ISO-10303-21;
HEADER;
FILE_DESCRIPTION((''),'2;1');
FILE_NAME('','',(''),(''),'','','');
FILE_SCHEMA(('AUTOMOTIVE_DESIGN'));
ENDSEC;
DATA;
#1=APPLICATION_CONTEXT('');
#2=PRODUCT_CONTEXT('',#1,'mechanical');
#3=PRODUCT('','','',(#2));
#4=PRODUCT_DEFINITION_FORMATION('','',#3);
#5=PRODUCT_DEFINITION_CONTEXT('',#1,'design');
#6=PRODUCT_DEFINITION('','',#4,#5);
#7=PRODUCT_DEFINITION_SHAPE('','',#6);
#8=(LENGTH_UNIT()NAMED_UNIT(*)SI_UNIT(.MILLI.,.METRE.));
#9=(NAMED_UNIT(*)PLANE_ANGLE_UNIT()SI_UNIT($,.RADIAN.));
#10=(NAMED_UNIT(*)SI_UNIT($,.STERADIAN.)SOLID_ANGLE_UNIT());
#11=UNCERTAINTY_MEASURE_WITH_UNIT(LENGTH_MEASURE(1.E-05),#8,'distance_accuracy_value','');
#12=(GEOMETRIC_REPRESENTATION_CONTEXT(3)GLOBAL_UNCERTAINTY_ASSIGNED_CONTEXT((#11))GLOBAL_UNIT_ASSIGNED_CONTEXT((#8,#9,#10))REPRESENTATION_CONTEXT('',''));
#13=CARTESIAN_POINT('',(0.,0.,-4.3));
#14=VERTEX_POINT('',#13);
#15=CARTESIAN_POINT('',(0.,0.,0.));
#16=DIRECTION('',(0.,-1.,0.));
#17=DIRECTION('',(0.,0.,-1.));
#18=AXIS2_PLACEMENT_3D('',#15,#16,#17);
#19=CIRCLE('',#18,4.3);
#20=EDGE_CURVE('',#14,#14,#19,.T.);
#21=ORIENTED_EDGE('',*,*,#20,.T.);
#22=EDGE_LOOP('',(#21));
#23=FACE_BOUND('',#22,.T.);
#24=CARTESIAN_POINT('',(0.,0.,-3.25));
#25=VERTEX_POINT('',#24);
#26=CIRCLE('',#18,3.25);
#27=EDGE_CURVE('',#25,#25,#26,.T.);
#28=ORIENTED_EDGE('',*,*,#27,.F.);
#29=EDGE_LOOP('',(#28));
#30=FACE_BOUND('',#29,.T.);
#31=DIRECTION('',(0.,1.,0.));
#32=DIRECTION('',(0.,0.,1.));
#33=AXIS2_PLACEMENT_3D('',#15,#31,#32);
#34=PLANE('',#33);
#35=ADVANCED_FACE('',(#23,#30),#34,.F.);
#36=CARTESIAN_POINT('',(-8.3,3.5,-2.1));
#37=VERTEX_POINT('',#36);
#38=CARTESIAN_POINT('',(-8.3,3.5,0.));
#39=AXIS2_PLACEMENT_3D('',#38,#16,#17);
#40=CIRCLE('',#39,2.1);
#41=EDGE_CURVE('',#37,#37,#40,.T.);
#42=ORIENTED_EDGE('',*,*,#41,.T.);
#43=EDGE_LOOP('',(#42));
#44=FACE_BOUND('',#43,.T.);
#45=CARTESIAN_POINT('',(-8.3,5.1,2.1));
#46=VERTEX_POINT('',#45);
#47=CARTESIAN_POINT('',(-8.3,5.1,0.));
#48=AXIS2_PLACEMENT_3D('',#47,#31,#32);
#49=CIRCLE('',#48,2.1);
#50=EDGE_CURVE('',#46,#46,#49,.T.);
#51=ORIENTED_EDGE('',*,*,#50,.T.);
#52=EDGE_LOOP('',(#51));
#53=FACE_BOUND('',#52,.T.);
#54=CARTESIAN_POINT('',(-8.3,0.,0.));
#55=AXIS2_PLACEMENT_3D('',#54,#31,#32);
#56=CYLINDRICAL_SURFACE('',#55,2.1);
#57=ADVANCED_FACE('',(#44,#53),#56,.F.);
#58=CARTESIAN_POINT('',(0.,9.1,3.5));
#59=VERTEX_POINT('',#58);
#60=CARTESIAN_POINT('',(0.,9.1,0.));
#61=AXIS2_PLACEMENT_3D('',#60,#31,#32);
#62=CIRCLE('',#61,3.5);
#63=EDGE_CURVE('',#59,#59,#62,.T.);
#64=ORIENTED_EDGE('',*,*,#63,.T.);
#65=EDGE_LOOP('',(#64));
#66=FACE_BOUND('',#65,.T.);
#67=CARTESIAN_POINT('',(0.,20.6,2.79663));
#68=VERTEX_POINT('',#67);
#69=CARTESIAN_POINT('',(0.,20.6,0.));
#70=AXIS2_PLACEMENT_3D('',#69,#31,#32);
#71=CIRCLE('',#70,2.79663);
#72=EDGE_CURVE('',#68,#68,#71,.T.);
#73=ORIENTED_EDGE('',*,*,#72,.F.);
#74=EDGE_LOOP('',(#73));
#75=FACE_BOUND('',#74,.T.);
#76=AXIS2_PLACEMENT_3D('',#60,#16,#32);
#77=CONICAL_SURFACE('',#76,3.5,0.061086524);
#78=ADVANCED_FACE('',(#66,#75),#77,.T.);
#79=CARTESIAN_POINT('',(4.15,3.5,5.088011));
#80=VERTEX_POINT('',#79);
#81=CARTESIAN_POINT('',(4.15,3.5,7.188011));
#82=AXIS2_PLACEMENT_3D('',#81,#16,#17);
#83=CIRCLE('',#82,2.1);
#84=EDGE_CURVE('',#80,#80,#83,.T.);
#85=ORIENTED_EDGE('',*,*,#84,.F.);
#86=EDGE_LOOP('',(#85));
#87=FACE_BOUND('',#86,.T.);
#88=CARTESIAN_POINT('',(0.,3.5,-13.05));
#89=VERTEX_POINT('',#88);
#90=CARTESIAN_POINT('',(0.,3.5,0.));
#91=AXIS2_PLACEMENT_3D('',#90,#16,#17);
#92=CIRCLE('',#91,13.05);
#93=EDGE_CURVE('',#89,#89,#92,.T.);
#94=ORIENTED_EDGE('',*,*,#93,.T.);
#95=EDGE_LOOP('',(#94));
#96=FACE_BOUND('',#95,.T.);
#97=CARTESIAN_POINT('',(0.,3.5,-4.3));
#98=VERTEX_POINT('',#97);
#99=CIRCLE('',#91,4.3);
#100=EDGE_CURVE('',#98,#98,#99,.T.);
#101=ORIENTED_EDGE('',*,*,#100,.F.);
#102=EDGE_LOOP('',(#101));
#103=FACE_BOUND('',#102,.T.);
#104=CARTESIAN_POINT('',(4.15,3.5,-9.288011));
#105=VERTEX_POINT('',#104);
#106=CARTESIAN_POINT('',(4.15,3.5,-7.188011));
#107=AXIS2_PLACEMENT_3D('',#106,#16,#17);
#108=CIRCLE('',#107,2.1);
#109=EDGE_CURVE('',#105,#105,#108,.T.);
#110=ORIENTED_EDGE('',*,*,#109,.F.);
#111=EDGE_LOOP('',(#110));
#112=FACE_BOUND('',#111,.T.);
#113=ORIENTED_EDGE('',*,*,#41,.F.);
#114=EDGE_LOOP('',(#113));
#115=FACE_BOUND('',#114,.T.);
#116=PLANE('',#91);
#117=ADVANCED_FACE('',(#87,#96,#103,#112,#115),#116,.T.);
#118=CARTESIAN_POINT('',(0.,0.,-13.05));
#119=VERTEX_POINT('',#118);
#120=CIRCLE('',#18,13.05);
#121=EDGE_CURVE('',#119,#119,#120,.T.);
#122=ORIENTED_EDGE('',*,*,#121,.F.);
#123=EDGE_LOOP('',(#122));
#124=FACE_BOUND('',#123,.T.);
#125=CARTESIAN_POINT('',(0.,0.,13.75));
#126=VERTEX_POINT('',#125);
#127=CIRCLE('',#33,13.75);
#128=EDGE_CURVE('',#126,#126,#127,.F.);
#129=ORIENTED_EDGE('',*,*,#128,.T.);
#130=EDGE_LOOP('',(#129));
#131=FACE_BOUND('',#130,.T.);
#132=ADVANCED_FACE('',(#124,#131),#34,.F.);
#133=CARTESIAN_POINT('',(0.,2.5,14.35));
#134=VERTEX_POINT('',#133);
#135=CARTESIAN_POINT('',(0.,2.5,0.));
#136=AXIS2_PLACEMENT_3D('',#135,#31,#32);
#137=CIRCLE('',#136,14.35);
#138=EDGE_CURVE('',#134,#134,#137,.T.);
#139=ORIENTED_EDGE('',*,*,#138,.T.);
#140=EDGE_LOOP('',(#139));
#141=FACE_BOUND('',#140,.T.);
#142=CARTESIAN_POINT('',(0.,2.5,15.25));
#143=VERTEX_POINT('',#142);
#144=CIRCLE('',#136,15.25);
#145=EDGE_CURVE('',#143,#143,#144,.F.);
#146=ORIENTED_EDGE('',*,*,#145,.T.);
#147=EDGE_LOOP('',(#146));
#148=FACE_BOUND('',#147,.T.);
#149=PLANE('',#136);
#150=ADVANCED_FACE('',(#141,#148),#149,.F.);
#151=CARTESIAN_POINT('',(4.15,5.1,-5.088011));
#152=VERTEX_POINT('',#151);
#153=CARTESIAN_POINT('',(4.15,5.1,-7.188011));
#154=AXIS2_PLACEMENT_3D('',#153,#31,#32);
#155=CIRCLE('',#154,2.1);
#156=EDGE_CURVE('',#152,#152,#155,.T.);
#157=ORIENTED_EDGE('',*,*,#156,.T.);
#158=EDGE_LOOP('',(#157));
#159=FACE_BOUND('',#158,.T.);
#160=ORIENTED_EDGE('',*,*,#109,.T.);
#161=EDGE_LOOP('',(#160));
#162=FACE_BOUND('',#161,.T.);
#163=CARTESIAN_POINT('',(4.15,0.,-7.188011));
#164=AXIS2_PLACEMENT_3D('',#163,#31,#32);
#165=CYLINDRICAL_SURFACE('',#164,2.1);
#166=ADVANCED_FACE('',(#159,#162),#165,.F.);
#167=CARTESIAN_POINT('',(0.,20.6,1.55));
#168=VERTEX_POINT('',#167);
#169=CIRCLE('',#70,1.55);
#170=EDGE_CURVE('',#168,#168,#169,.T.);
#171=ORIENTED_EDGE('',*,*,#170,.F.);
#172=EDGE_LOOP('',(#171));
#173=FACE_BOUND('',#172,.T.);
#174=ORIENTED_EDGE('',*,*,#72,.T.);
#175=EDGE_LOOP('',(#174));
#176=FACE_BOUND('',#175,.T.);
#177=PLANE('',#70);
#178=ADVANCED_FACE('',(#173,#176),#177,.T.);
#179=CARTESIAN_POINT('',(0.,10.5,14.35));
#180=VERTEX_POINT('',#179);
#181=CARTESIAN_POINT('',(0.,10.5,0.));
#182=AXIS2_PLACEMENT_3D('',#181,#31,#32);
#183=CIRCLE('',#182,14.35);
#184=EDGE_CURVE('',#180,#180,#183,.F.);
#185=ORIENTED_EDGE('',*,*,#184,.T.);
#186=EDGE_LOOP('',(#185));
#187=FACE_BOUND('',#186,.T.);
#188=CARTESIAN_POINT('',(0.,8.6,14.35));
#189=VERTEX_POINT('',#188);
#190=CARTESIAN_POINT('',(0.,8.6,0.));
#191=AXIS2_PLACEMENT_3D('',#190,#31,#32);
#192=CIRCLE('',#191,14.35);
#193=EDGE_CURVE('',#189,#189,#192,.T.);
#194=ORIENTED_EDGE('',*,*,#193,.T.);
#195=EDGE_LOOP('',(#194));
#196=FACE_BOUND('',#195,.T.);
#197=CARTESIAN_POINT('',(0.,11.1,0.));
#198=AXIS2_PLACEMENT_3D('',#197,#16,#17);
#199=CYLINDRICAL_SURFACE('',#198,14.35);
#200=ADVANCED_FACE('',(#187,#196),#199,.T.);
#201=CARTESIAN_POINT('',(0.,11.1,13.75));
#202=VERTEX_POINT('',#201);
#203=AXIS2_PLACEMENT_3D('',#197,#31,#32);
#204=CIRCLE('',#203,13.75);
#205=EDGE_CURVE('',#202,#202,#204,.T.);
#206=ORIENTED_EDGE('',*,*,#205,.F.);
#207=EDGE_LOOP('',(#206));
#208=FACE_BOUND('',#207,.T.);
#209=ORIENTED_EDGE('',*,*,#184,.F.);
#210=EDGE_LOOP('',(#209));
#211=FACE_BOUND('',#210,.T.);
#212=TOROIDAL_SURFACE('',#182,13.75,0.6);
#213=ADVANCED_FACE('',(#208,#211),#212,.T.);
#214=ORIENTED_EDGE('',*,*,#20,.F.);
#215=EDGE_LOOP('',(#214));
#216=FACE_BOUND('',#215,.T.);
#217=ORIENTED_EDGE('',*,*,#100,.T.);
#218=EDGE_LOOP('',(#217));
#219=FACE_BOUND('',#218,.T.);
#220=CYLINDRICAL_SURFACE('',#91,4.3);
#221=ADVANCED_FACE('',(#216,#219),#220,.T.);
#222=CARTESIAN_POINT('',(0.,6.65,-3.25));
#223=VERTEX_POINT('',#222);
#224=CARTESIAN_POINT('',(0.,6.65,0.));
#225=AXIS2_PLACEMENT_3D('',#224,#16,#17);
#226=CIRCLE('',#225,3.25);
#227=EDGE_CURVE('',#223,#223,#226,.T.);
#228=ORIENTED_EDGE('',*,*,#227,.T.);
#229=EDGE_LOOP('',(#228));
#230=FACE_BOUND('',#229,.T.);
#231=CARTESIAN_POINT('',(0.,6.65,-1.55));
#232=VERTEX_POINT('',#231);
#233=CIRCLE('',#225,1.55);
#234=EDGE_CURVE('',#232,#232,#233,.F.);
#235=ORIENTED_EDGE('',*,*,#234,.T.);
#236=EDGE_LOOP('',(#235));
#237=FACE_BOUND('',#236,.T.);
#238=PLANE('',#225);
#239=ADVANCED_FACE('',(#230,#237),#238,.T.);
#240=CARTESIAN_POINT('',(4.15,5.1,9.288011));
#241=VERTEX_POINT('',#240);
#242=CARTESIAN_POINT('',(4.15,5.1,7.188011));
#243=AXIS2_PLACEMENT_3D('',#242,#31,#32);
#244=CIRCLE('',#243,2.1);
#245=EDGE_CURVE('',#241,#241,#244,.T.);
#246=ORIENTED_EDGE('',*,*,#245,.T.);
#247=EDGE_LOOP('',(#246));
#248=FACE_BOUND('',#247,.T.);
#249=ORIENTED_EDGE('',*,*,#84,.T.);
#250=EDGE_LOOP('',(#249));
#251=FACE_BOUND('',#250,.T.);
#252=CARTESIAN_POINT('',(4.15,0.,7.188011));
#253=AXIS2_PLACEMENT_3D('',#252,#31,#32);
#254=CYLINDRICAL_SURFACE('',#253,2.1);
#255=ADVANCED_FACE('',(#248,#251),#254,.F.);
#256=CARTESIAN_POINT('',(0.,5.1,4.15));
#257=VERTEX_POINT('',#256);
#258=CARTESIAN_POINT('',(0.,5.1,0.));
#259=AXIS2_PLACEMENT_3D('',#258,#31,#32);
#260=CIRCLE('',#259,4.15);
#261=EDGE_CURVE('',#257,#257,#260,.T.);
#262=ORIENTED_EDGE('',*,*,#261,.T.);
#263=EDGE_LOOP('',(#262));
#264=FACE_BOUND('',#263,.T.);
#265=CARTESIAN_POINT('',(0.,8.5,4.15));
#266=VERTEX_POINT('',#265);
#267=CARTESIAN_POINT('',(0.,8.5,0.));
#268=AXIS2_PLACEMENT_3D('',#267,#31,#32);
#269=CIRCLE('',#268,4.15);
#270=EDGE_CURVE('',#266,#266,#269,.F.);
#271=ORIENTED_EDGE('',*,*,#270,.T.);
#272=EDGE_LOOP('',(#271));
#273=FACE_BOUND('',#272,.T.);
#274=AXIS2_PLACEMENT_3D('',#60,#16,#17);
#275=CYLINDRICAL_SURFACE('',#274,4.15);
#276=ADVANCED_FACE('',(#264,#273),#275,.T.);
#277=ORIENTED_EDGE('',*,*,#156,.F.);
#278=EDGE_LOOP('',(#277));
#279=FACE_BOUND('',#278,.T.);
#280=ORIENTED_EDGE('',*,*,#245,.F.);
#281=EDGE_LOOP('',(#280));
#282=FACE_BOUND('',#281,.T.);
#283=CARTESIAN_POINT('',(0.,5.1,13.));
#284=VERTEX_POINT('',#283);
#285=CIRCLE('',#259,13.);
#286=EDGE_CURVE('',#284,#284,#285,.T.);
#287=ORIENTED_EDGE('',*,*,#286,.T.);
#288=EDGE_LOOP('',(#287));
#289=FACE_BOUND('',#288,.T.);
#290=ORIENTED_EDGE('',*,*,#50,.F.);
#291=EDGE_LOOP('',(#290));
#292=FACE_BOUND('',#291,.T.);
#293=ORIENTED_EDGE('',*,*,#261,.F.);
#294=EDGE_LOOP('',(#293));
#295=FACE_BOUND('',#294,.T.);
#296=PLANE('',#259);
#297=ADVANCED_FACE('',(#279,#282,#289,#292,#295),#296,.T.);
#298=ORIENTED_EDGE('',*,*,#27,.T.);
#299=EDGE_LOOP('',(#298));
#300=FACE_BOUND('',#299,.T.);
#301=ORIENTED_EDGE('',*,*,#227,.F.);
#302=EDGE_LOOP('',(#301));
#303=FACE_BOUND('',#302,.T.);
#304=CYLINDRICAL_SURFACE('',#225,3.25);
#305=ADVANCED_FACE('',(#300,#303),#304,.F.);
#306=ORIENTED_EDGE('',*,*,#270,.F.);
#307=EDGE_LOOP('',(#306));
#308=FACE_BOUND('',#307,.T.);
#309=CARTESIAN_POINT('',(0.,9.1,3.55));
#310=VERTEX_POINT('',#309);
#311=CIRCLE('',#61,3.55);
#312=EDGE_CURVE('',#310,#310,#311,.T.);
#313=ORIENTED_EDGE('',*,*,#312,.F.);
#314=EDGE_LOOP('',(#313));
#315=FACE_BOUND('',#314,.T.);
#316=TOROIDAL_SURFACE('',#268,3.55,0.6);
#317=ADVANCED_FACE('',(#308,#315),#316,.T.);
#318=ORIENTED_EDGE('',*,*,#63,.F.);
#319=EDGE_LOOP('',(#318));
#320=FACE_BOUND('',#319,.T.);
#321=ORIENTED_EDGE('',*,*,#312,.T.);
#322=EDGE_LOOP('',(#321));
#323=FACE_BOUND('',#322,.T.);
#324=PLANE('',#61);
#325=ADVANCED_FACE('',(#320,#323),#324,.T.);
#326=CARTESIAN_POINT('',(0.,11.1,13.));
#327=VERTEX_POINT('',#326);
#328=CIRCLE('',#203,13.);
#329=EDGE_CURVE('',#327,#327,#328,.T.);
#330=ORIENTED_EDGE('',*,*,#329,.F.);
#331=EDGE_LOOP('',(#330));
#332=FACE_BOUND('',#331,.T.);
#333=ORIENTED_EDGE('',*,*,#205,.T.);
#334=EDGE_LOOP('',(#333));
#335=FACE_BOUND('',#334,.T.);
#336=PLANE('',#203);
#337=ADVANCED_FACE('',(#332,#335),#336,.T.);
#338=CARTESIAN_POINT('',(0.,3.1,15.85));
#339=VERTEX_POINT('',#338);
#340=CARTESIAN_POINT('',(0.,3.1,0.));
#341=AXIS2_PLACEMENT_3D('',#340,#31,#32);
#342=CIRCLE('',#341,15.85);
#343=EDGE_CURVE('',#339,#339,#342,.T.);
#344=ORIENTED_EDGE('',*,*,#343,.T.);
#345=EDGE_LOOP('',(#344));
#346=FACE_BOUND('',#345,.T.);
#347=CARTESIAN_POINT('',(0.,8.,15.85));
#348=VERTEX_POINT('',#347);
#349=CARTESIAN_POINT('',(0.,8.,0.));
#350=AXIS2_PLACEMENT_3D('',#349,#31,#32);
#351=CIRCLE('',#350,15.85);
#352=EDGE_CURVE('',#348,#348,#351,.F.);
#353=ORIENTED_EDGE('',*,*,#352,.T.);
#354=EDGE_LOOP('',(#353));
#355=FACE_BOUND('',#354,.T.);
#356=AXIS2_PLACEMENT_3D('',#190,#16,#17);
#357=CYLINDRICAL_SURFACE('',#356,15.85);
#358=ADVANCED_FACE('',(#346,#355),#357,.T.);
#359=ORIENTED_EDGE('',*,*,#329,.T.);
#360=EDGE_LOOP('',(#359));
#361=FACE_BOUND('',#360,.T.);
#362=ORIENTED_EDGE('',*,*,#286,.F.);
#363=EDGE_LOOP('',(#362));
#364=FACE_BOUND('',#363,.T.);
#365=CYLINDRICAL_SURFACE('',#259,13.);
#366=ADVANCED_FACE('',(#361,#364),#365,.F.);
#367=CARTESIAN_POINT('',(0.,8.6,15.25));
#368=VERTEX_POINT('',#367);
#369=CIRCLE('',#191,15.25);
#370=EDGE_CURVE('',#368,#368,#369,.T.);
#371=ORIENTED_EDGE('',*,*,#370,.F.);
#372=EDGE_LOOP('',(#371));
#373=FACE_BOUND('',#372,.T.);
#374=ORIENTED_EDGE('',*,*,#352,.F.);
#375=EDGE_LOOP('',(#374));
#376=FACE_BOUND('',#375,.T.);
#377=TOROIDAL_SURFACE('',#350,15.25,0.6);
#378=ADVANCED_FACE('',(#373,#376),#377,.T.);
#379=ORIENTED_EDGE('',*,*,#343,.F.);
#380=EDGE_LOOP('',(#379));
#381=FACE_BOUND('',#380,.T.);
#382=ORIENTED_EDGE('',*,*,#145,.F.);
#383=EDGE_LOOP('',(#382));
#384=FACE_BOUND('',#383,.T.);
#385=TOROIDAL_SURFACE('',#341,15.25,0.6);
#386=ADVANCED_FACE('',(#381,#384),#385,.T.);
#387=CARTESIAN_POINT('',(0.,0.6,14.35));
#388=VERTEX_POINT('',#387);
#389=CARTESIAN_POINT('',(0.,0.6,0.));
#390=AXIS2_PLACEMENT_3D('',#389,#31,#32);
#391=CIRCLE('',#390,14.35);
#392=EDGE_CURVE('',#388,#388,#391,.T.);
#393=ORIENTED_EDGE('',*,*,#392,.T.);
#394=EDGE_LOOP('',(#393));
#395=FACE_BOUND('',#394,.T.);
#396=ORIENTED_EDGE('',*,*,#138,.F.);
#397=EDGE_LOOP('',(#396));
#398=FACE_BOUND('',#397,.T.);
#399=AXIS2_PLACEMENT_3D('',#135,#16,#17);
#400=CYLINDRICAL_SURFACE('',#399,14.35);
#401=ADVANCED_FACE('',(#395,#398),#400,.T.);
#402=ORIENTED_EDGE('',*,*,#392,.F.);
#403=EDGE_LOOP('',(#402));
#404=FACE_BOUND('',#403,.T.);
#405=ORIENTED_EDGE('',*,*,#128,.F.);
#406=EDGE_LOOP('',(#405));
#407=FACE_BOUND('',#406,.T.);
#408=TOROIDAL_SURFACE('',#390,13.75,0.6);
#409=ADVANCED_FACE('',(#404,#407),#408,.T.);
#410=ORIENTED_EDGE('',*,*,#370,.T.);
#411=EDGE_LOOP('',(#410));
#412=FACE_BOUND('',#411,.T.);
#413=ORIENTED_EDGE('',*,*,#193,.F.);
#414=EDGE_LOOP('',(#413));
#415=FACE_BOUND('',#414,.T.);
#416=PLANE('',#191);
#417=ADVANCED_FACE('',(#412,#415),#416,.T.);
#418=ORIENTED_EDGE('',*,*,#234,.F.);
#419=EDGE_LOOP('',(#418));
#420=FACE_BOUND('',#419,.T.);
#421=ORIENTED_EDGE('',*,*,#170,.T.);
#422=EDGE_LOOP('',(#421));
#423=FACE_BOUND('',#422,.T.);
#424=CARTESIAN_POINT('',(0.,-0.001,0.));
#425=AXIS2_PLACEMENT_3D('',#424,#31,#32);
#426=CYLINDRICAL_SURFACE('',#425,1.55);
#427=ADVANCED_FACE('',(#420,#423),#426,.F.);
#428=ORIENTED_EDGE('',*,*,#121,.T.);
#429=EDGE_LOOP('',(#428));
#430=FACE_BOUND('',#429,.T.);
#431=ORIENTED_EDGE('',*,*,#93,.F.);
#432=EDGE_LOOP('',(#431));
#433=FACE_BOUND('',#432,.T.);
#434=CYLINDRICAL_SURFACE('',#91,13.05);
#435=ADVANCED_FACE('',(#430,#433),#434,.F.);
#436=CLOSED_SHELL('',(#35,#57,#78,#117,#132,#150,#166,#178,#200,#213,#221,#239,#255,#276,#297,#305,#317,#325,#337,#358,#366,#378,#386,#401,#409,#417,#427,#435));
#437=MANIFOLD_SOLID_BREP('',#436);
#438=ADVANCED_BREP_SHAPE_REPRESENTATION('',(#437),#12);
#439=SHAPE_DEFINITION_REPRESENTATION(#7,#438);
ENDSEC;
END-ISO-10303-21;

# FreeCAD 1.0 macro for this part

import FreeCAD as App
import Part
import Sketcher

V = App.Vector


def edges_at(feature, points):
    """Names of the edges that pass closest to the given points."""
    edges = feature.Shape.Edges
    near = lambda p: min(range(len(edges)), key=lambda i: edges[i].distToShape(Part.Vertex(*p))[0])
    return sorted({f"Edge{near(p) + 1}" for p in points})

doc = App.newDocument("Part")
body = doc.addObject("PartDesign::Body", "Body")

# Sketch on XZ plane
sketch1 = body.newObject("Sketcher::SketchObject", "Sketch")
sketch1.AttachmentSupport = (doc.getObject("XZ_Plane"), [""])
sketch1.MapMode = "FlatFace"
sketch1.addGeometry(Part.Circle(V(0, 0, 0), V(0, 0, 1), 14), False)
sketch1.addConstraint(Sketcher.Constraint("Coincident", 0, 3, -1, 1))
sketch1.addConstraint(Sketcher.Constraint("Diameter", 0, 28.7))
pad1 = body.newObject("PartDesign::Pad", "Pad")
pad1.Profile = sketch1
pad1.Length = 2.5
pad1.Reversed = True

# Sketch on XZ plane
sketch2 = body.newObject("Sketcher::SketchObject", "Sketch001")
sketch2.AttachmentSupport = (doc.getObject("XZ_Plane"), [""])
sketch2.MapMode = "FlatFace"
sketch2.AttachmentOffset = App.Placement(V(0, 0, -2.5), App.Rotation())
sketch2.addGeometry(Part.Circle(V(0, 0, 0), V(0, 0, 1), 16), False)
sketch2.addConstraint(Sketcher.Constraint("Coincident", 0, 3, -1, 1))
sketch2.addConstraint(Sketcher.Constraint("Diameter", 0, 31.7))
pad2 = body.newObject("PartDesign::Pad", "Pad001")
pad2.Profile = sketch2
pad2.Length = 6.1
pad2.Reversed = True

# Sketch on XZ plane
sketch3 = body.newObject("Sketcher::SketchObject", "Sketch002")
sketch3.AttachmentSupport = (doc.getObject("XZ_Plane"), [""])
sketch3.MapMode = "FlatFace"
sketch3.AttachmentOffset = App.Placement(V(0, 0, -8.6), App.Rotation())
sketch3.addGeometry(Part.Circle(V(0, 0, 0), V(0, 0, 1), 14), False)
sketch3.addConstraint(Sketcher.Constraint("Coincident", 0, 3, -1, 1))
sketch3.addConstraint(Sketcher.Constraint("Diameter", 0, 28.7))
pad3 = body.newObject("PartDesign::Pad", "Pad002")
pad3.Profile = sketch3
pad3.Length = 2.5
pad3.Reversed = True

# Sketch on XZ plane
sketch4 = body.newObject("Sketcher::SketchObject", "Sketch003")
sketch4.AttachmentSupport = (doc.getObject("XZ_Plane"), [""])
sketch4.MapMode = "FlatFace"
sketch4.AttachmentOffset = App.Placement(V(0, 0, -11.1), App.Rotation())
sketch4.addGeometry(Part.Circle(V(0, 0, 0), V(0, 0, 1), 13), False)
sketch4.addConstraint(Sketcher.Constraint("Coincident", 0, 3, -1, 1))
sketch4.addConstraint(Sketcher.Constraint("Diameter", 0, 26.0))
pocket1 = body.newObject("PartDesign::Pocket", "Pocket")
pocket1.Profile = sketch4
pocket1.Length = 6
pocket1.Reversed = True

# Sketch on XZ plane
sketch5 = body.newObject("Sketcher::SketchObject", "Sketch004")
sketch5.AttachmentSupport = (doc.getObject("XZ_Plane"), [""])
sketch5.MapMode = "FlatFace"
sketch5.addGeometry(Part.Circle(V(0, 0, 0), V(0, 0, 1), 13.1), False)
sketch5.addGeometry(Part.Circle(V(0, 0, 0), V(0, 0, 1), 4.3), False)
sketch5.addConstraint(Sketcher.Constraint("Coincident", 0, 3, -1, 1))
sketch5.addConstraint(Sketcher.Constraint("Coincident", 1, 3, -1, 1))
sketch5.addConstraint(Sketcher.Constraint("Diameter", 0, 26.1))
sketch5.addConstraint(Sketcher.Constraint("Diameter", 1, 8.6))
pocket2 = body.newObject("PartDesign::Pocket", "Pocket001")
pocket2.Profile = sketch5
pocket2.Length = 3.5

# Sketch on XZ plane
sketch6 = body.newObject("Sketcher::SketchObject", "Sketch005")
sketch6.AttachmentSupport = (doc.getObject("XZ_Plane"), [""])
sketch6.MapMode = "FlatFace"
sketch6.AttachmentOffset = App.Placement(V(0, 0, -5.1), App.Rotation())
sketch6.addGeometry(Part.Circle(V(0, 0, 0), V(0, 0, 1), 4.2), False)
sketch6.addConstraint(Sketcher.Constraint("Coincident", 0, 3, -1, 1))
sketch6.addConstraint(Sketcher.Constraint("Diameter", 0, 8.3))
pad4 = body.newObject("PartDesign::Pad", "Pad003")
pad4.Profile = sketch6
pad4.Length = 4
pad4.Reversed = True

# Sketch on XZ plane
sketch7 = body.newObject("Sketcher::SketchObject", "Sketch006")
sketch7.AttachmentSupport = (doc.getObject("XZ_Plane"), [""])
sketch7.MapMode = "FlatFace"
sketch7.AttachmentOffset = App.Placement(V(0, 0, -9.1), App.Rotation())
sketch7.addGeometry(Part.Circle(V(0, 0, 0), V(0, 0, 1), 3.5), False)
sketch7.addConstraint(Sketcher.Constraint("Coincident", 0, 3, -1, 1))
sketch7.addConstraint(Sketcher.Constraint("Diameter", 0, 7.0))
pad5 = body.newObject("PartDesign::Pad", "Pad004")
pad5.Profile = sketch7
pad5.Length = 11.5
pad5.Reversed = True
pad5.TaperAngle = -3.5

# Sketch on XZ plane
sketch8 = body.newObject("Sketcher::SketchObject", "Sketch007")
sketch8.AttachmentSupport = (doc.getObject("XZ_Plane"), [""])
sketch8.MapMode = "FlatFace"
sketch8.addGeometry(Part.Circle(V(0, 0, 0), V(0, 0, 1), 3.2), False)
sketch8.addConstraint(Sketcher.Constraint("Coincident", 0, 3, -1, 1))
sketch8.addConstraint(Sketcher.Constraint("Diameter", 0, 6.5))
pocket3 = body.newObject("PartDesign::Pocket", "Pocket002")
pocket3.Profile = sketch8
pocket3.Length = 6.65

# Sketch on XZ plane
sketch9 = body.newObject("Sketcher::SketchObject", "Sketch008")
sketch9.AttachmentSupport = (doc.getObject("XZ_Plane"), [""])
sketch9.MapMode = "FlatFace"
sketch9.AttachmentOffset = App.Placement(V(0, 0, -20.6), App.Rotation())
sketch9.addGeometry(Part.Circle(V(0, 0, 0), V(0, 0, 1), 1.6), False)
sketch9.addConstraint(Sketcher.Constraint("Coincident", 0, 3, -1, 1))
sketch9.addConstraint(Sketcher.Constraint("Diameter", 0, 3.1))
pocket4 = body.newObject("PartDesign::Pocket", "Pocket003")
pocket4.Profile = sketch9
pocket4.Type = "UpToFirst"
pocket4.Reversed = True
doc.recompute()

fillet = body.newObject("PartDesign::Fillet", "Fillet")
fillet.Base = (pocket4, edges_at(pocket4, [
    (-14.35, 11.1, 0),
    (-14.35, 0, 0),
    (-4.15, 9.1, 0),
    (-15.85, 2.5, 0),
    (-15.85, 8.6, 0),
]))
fillet.Radius = 0.6

# Sketch on XZ plane
sketch10 = body.newObject("Sketcher::SketchObject", "Sketch009")
sketch10.AttachmentSupport = (doc.getObject("XZ_Plane"), [""])
sketch10.MapMode = "FlatFace"
sketch10.AttachmentOffset = App.Placement(V(0, 0, -5.1), App.Rotation())
sketch10.addGeometry(Part.Circle(V(-8.3, 0, 0), V(0, 0, 1), 2.1), False)
sketch10.addGeometry(Part.Circle(V(4.1, -7.2, 0), V(0, 0, 1), 2.1), False)
sketch10.addGeometry(Part.Circle(V(4.1, 7.2, 0), V(0, 0, 1), 2.1), False)
sketch10.addConstraint(Sketcher.Constraint("Equal", 0, 1))
sketch10.addConstraint(Sketcher.Constraint("Equal", 1, 2))
sketch10.addConstraint(Sketcher.Constraint("Symmetric", 1, 3, 2, 3, -1))
sketch10.addConstraint(Sketcher.Constraint("PointOnObject", 0, 3, -1))
sketch10.addConstraint(Sketcher.Constraint("Diameter", 0, 4.2))
sketch10.addConstraint(Sketcher.Constraint("DistanceX", 0, 3, -1, 1, 8.3))
sketch10.addConstraint(Sketcher.Constraint("DistanceX", -1, 1, 1, 3, 4.15))
sketch10.addConstraint(Sketcher.Constraint("DistanceY", 1, 3, -1, 1, 7.188011))
pocket5 = body.newObject("PartDesign::Pocket", "Pocket004")
pocket5.Profile = sketch10
pocket5.Type = "ThroughAll"
pocket5.Reversed = True

doc.recompute()
